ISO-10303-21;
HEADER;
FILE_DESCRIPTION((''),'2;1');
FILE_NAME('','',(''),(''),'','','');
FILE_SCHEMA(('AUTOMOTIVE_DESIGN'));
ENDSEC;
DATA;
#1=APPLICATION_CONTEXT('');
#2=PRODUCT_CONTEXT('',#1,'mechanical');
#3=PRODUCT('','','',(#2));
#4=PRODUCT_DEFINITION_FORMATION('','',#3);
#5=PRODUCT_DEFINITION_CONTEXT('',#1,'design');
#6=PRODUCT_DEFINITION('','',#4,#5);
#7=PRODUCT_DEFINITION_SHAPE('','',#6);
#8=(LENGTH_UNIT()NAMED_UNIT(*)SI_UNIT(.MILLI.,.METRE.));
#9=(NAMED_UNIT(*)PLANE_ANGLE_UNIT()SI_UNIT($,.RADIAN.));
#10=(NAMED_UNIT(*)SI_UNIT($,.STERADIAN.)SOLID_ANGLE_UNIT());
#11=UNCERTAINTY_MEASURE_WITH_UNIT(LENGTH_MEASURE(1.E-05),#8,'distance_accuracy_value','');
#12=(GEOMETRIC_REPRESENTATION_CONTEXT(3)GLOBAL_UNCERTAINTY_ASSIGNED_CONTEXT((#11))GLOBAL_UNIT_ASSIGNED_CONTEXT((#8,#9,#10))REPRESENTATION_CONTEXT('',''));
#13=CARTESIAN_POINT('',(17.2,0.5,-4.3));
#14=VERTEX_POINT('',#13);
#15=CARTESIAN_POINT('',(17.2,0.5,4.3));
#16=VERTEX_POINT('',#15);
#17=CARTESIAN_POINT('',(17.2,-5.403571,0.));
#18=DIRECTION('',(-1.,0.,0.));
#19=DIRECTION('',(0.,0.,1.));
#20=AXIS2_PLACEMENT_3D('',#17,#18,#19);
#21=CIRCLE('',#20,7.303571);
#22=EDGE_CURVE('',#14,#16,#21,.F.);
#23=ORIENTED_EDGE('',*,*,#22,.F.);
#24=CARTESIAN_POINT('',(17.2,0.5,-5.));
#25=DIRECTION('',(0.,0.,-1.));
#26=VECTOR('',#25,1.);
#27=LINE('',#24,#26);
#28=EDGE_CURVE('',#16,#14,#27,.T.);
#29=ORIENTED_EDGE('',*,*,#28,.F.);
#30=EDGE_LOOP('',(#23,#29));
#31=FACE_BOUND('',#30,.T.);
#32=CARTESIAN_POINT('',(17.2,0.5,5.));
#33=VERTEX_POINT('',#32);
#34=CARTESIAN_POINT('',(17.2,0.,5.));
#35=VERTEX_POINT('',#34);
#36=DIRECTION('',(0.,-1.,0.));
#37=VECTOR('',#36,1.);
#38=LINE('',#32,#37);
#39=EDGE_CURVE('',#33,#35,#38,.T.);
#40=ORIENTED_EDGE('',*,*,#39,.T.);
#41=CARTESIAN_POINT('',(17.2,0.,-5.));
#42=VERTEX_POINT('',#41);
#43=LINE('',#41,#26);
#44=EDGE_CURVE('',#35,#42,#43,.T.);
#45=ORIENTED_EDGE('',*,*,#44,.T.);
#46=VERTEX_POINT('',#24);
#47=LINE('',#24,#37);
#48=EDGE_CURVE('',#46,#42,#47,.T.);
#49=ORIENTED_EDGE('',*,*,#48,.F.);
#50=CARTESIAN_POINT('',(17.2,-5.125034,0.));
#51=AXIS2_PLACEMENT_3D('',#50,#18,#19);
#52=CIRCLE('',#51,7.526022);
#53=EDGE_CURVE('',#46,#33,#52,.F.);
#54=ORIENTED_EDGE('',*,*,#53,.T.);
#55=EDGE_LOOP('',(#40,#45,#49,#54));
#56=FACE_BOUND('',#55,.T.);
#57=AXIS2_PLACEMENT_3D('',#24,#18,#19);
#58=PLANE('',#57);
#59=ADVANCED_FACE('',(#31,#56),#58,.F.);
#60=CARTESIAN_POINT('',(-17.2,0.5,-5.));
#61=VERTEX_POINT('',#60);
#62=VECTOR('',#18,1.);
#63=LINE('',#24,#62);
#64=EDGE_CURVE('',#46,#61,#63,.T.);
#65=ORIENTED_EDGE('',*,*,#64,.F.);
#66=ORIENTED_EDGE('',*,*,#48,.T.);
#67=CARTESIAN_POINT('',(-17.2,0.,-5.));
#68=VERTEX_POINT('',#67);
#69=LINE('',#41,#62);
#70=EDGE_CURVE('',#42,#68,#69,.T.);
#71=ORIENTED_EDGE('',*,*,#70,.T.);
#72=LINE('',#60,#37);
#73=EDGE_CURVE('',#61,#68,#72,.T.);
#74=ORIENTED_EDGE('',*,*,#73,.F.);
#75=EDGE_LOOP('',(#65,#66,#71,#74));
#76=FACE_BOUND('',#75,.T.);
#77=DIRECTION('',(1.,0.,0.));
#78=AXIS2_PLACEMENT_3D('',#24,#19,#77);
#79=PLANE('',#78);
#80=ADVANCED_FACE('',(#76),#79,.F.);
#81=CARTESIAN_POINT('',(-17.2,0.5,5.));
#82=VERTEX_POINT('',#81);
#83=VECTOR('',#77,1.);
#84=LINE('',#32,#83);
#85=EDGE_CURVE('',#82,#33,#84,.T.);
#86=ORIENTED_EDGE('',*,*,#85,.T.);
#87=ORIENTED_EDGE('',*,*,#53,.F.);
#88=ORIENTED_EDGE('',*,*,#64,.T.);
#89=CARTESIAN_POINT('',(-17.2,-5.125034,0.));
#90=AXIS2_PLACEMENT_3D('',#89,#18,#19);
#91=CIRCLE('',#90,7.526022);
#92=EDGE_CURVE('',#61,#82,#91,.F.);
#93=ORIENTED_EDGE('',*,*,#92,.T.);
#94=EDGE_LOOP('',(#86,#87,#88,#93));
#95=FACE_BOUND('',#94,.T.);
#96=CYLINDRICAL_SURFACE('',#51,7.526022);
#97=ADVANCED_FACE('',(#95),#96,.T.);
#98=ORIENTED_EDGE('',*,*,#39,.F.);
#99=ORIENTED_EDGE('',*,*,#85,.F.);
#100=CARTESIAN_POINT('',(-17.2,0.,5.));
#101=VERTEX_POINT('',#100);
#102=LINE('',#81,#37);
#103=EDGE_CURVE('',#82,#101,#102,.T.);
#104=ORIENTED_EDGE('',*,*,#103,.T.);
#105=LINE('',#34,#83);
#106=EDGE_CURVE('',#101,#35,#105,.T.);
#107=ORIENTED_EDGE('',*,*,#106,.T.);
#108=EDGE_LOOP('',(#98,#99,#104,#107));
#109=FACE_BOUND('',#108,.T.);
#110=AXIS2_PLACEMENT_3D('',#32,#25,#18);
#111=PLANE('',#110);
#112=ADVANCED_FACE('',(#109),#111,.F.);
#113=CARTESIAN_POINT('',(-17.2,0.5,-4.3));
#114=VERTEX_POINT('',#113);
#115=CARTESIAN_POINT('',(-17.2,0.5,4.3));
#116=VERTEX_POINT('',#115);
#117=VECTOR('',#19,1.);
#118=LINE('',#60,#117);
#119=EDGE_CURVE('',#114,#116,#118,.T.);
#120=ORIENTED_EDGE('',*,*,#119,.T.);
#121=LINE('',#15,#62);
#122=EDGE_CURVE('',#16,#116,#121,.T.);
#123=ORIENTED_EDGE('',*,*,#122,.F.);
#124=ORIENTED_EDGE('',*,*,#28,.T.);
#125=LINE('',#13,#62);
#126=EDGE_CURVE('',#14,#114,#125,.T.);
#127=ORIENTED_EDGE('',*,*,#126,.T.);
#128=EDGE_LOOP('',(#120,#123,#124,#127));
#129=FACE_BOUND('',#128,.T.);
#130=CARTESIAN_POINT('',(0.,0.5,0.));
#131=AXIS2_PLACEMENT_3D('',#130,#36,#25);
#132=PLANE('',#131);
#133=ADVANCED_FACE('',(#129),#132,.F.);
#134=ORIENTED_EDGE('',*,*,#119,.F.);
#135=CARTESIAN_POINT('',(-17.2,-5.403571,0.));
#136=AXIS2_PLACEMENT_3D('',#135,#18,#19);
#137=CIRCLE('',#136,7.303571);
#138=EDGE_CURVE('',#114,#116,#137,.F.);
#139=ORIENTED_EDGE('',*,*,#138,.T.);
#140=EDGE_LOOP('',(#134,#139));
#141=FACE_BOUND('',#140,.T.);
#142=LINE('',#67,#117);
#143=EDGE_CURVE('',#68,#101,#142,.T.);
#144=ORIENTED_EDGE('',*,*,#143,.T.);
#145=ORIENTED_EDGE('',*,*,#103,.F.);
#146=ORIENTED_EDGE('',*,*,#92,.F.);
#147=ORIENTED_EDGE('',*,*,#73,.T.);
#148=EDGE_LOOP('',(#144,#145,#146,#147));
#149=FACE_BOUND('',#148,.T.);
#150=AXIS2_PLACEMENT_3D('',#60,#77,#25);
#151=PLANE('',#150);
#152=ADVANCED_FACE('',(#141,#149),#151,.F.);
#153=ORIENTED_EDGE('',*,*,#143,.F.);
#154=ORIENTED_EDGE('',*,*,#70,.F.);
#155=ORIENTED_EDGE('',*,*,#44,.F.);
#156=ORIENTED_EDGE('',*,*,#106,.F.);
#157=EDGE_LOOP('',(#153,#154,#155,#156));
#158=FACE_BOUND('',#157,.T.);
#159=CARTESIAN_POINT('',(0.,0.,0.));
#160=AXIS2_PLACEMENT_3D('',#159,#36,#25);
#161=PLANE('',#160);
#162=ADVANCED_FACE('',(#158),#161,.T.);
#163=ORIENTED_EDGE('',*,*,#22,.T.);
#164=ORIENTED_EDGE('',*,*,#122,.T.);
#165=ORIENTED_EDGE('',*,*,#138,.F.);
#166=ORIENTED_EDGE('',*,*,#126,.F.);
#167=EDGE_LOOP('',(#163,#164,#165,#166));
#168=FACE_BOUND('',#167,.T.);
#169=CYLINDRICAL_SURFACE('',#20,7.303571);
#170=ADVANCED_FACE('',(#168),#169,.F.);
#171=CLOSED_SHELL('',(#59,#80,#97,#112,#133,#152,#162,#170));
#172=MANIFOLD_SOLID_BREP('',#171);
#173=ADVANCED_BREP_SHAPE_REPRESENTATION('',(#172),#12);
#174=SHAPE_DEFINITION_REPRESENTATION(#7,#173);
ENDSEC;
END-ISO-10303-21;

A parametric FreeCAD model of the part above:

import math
import FreeCAD as App
import Part
import Sketcher

V = App.Vector

doc = App.newDocument("Part")
body = doc.addObject("PartDesign::Body", "Body")

sketch1 = body.newObject("Sketcher::SketchObject", "Sketch")
sketch1.AttachmentSupport = (doc.getObject("XZ_Plane"), [""])
sketch1.MapMode = "FlatFace"
sketch1.addGeometry([
    Part.LineSegment(V(-17.2, -5, 0), V(-17.2, 5, 0)),
    Part.LineSegment(V(-17.2, 5, 0), V(17.2, 5, 0)),
    Part.LineSegment(V(17.2, 5, 0), V(17.2, -5, 0)),
    Part.LineSegment(V(17.2, -5, 0), V(-17.2, -5, 0)),
], False)
sketch1.addConstraint([
    Sketcher.Constraint("Coincident", 0, 2, 1, 1),
    Sketcher.Constraint("Coincident", 1, 2, 2, 1),
    Sketcher.Constraint("Coincident", 2, 2, 3, 1),
    Sketcher.Constraint("Coincident", 3, 2, 0, 1),
    Sketcher.Constraint("Vertical", 0),
    Sketcher.Constraint("Horizontal", 1),
    Sketcher.Constraint("Vertical", 2),
    Sketcher.Constraint("Horizontal", 3),
    Sketcher.Constraint("Symmetric", 0, 2, 2, 2, -1, 1),
    Sketcher.Constraint("DistanceY", 0, 1, 0, 2, 10.0),
    Sketcher.Constraint("DistanceX", 1, 1, 1, 2, 34.4),
])
pad1 = body.newObject("PartDesign::Pad", "Pad")
pad1.Profile = sketch1
pad1.Length = 0.5
pad1.Reversed = True

sketch2 = body.newObject("Sketcher::SketchObject", "Sketch001")
sketch2.AttachmentSupport = (doc.getObject("YZ_Plane"), [""])
sketch2.MapMode = "FlatFace"
sketch2.AttachmentOffset = App.Placement(V(0, 0, -17.2), App.Rotation())
sketch2.addGeometry([
    Part.ArcOfCircle(Part.Circle(V(-5.125034, 0, 0), V(0, 0, 1), 7.526022), math.radians(-41.633367), math.radians(41.633367)),
    Part.LineSegment(V(0.5, -5, 0), V(0.5, -4.3, 0)),
    Part.ArcOfCircle(Part.Circle(V(-5.403571, 0, 0), V(0, 0, 1), 7.303571), math.radians(-36.068571), math.radians(36.068571)),
    Part.LineSegment(V(0.5, 4.3, 0), V(0.5, 5, 0)),
], False)
sketch2.addConstraint([
    Sketcher.Constraint("Coincident", 0, 1, 1, 1),
    Sketcher.Constraint("Coincident", 1, 2, 2, 1),
    Sketcher.Constraint("Coincident", 2, 2, 3, 1),
    Sketcher.Constraint("Coincident", 3, 2, 0, 2),
    Sketcher.Constraint("Vertical", 1),
    Sketcher.Constraint("Vertical", 3),
    Sketcher.Constraint("Symmetric", 1, 2, 2, 2, -1),
    Sketcher.Constraint("PointOnObject", 0, 3, -1),
    Sketcher.Constraint("DistanceY", 1, 1, 1, 2, 0.7),
    Sketcher.Constraint("DistanceY", 0, 1, -1, 1, 5.0),
    Sketcher.Constraint("DistanceX", -1, 1, 0, 1, 0.5),
    Sketcher.Constraint("Radius", 2, 7.303571),
    Sketcher.Constraint("Radius", 0, 7.526022),
])
pad2 = body.newObject("PartDesign::Pad", "Pad001")
pad2.Profile = sketch2
pad2.Length = 34.4

doc.recompute()
